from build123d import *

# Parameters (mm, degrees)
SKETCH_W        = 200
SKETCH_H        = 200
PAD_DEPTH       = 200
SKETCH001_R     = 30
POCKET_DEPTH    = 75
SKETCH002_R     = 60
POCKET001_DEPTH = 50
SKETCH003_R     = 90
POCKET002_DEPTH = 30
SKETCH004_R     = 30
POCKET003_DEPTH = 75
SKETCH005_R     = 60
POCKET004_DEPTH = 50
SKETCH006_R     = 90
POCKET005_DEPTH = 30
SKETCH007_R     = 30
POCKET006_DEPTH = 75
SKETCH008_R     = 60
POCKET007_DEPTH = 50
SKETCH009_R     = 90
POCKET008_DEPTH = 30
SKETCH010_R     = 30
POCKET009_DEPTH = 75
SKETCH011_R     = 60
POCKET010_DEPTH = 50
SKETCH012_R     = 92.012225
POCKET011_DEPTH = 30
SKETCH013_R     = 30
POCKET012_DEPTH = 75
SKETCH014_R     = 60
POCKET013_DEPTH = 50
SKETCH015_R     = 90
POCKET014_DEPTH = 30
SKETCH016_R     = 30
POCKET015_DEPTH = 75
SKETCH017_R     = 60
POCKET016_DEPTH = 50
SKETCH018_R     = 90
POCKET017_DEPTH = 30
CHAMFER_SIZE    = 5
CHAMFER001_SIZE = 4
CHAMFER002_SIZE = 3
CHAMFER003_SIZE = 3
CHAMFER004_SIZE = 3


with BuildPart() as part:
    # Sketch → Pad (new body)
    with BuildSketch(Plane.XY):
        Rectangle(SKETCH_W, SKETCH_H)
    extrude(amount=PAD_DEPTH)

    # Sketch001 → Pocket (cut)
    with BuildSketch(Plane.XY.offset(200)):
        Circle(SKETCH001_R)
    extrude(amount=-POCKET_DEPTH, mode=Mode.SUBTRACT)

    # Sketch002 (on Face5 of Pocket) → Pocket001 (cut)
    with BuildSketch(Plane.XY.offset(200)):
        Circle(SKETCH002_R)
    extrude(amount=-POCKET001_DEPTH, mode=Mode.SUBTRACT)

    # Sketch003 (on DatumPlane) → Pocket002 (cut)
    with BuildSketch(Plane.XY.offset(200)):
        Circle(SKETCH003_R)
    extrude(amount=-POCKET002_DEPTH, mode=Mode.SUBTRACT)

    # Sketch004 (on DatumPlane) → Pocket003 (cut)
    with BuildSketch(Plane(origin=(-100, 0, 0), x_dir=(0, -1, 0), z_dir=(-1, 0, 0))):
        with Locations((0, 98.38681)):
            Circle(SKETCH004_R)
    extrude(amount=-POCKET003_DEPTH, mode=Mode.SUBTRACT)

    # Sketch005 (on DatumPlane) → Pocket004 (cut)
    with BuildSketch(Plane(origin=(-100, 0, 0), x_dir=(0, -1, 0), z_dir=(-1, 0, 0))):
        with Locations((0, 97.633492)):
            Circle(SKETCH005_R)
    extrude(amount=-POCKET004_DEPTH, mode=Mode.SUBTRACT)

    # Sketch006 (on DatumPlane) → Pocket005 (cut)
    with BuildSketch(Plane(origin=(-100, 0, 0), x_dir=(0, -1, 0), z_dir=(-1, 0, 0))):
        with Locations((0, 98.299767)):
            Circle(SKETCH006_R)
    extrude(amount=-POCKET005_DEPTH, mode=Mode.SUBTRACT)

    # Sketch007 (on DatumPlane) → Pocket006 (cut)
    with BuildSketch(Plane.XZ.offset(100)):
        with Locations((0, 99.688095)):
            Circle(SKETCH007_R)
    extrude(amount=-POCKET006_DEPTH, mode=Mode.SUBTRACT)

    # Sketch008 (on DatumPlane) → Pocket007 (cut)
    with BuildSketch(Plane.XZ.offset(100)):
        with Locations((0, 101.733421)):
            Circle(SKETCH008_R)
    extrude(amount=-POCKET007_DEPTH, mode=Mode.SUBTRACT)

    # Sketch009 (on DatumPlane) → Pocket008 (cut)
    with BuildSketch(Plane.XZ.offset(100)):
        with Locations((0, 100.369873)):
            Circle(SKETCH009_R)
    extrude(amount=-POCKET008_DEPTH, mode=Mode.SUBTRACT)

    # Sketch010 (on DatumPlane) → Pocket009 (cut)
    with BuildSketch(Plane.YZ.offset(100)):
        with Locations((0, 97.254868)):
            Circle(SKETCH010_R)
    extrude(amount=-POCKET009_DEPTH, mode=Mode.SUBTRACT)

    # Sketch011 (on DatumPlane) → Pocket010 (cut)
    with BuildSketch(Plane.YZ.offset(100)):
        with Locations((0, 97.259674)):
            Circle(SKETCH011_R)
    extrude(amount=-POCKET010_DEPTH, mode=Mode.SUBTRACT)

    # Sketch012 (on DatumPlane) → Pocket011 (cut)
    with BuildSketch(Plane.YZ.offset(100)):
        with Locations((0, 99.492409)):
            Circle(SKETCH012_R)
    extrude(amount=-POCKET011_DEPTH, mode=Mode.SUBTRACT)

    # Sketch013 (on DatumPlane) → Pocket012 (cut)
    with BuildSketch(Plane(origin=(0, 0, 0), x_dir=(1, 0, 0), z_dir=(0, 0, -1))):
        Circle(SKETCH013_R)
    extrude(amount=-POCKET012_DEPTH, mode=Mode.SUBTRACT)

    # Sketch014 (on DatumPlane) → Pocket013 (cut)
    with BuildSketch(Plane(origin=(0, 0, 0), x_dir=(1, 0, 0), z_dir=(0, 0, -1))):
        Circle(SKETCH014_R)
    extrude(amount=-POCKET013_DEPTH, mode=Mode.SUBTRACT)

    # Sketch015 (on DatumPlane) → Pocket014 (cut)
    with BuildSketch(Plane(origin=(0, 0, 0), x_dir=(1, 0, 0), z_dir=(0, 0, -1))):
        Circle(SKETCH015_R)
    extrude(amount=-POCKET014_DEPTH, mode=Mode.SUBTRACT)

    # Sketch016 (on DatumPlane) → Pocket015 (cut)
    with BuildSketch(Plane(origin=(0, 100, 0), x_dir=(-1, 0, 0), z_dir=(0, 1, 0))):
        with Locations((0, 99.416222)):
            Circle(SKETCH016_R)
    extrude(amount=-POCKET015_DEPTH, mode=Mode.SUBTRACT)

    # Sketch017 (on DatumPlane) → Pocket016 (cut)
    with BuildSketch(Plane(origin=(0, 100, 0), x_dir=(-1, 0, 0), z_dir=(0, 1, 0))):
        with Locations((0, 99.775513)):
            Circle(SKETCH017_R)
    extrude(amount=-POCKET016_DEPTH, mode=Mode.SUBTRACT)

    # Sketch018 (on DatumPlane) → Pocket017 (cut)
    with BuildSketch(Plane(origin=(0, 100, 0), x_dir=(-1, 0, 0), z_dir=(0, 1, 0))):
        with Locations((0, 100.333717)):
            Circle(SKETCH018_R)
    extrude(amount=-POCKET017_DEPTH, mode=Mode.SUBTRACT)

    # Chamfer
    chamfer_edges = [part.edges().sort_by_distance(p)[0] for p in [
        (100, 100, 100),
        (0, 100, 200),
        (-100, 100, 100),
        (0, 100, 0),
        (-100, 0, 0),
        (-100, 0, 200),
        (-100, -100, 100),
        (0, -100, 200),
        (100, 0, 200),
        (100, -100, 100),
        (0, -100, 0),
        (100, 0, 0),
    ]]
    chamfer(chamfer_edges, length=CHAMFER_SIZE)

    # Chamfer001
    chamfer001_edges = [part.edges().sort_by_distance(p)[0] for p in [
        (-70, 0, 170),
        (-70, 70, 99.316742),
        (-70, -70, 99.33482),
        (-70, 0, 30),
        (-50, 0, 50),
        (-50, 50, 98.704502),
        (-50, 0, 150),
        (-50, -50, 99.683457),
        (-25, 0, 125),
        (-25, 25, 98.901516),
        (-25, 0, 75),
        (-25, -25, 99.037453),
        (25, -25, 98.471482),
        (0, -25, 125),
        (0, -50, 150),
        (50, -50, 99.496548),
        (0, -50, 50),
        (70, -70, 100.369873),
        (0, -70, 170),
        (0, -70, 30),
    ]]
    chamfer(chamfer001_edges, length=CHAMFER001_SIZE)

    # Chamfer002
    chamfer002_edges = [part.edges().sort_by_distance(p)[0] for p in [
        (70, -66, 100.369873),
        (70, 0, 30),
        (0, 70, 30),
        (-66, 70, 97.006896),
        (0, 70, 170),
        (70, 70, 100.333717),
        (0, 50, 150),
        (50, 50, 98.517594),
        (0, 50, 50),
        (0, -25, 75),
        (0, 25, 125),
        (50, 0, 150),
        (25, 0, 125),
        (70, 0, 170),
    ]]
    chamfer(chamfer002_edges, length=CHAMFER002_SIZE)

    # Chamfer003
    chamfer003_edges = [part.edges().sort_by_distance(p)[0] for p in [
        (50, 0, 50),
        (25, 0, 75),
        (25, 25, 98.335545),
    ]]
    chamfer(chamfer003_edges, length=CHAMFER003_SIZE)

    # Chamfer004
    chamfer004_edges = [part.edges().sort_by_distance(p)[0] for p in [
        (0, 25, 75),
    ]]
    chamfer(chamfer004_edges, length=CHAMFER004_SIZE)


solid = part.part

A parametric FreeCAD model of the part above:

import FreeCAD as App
import Part
import Sketcher

V = App.Vector


def edges_at(feature, points):
    """Names of the edges that pass closest to the given points."""
    edges = feature.Shape.Edges
    near = lambda p: min(range(len(edges)), key=lambda i: edges[i].distToShape(Part.Vertex(*p))[0])
    return sorted({f"Edge{near(p) + 1}" for p in points})


def add_polygon(sketch, points):
    """Adds a closed chain of lines whose ends are joined by coincident constraints."""
    first, n = sketch.GeometryCount, len(points)
    for a, b in zip(points, points[1:] + points[:1]):
        sketch.addGeometry(Part.LineSegment(App.Vector(*a, 0), App.Vector(*b, 0)), False)
    for i in range(n):
        sketch.addConstraint(Sketcher.Constraint("Coincident", first + i, 2, first + (i + 1) % n, 1))

doc = App.newDocument("Part")
body = doc.addObject("PartDesign::Body", "Body")

sketch1 = body.newObject("Sketcher::SketchObject", "Sketch")
sketch1.AttachmentSupport = (doc.getObject("XY_Plane"), [""])
sketch1.MapMode = "FlatFace"
add_polygon(sketch1, [(-100, 100), (-100, -100), (100, -100), (100, 100)])
sketch1.addConstraint([
    Sketcher.Constraint("Vertical", 0),
    Sketcher.Constraint("Horizontal", 1),
    Sketcher.Constraint("Vertical", 2),
    Sketcher.Constraint("Horizontal", 3),
    Sketcher.Constraint("Symmetric", 0, 2, 2, 2, -1, 1),
    Sketcher.Constraint("Equal", 3, 0),
    Sketcher.Constraint("DistanceX", 1, 1, 1, 2, 200.0),
])
pad1 = body.newObject("PartDesign::Pad", "Pad")
pad1.Profile = sketch1
pad1.Length = 200

sketch2 = body.newObject("Sketcher::SketchObject", "Sketch001")
sketch2.AttachmentSupport = (doc.getObject("XY_Plane"), [""])
sketch2.MapMode = "FlatFace"
sketch2.AttachmentOffset = App.Placement(V(0, 0, 200), App.Rotation())
sketch2.addGeometry(Part.Circle(V(0, 0, 0), V(0, 0, 1), 30), False)
sketch2.addConstraint([
    Sketcher.Constraint("Coincident", 0, 3, -1, 1),
    Sketcher.Constraint("Diameter", 0, 60.0),
])
pocket1 = body.newObject("PartDesign::Pocket", "Pocket")
pocket1.Profile = sketch2
pocket1.Length = 75

sketch3 = body.newObject("Sketcher::SketchObject", "Sketch002")
sketch3.AttachmentSupport = (doc.getObject("XY_Plane"), [""])
sketch3.MapMode = "FlatFace"
sketch3.AttachmentOffset = App.Placement(V(0, 0, 200), App.Rotation())
sketch3.addGeometry(Part.Circle(V(0, 0, 0), V(0, 0, 1), 60), False)
sketch3.addConstraint([
    Sketcher.Constraint("Coincident", 0, 3, -1, 1),
    Sketcher.Constraint("Diameter", 0, 120.0),
])
pocket2 = body.newObject("PartDesign::Pocket", "Pocket001")
pocket2.Profile = sketch3
pocket2.Length = 50

sketch4 = body.newObject("Sketcher::SketchObject", "Sketch003")
sketch4.AttachmentSupport = (doc.getObject("XY_Plane"), [""])
sketch4.MapMode = "FlatFace"
sketch4.AttachmentOffset = App.Placement(V(0, 0, 200), App.Rotation())
sketch4.addGeometry(Part.Circle(V(0, 0, 0), V(0, 0, 1), 90), False)
sketch4.addConstraint([
    Sketcher.Constraint("Coincident", 0, 3, -1, 1),
    Sketcher.Constraint("Diameter", 0, 180.0),
])
pocket3 = body.newObject("PartDesign::Pocket", "Pocket002")
pocket3.Profile = sketch4
pocket3.Length = 30

sketch5 = body.newObject("Sketcher::SketchObject", "Sketch004")
sketch5.AttachmentSupport = (doc.getObject("YZ_Plane"), [""])
sketch5.MapMode = "FlatFace"
sketch5.AttachmentOffset = App.Placement(V(0, 0, -100), App.Rotation())
sketch5.addGeometry(Part.Circle(V(0, 98, 0), V(0, 0, 1), 30), False)
sketch5.addConstraint([
    Sketcher.Constraint("PointOnObject", 0, 3, -2),
    Sketcher.Constraint("Diameter", 0, 60.0),
    Sketcher.Constraint("DistanceY", -1, 1, 0, 3, 98.38681),
])
pocket4 = body.newObject("PartDesign::Pocket", "Pocket003")
pocket4.Profile = sketch5
pocket4.Length = 75
pocket4.Reversed = True

sketch6 = body.newObject("Sketcher::SketchObject", "Sketch005")
sketch6.AttachmentSupport = (doc.getObject("YZ_Plane"), [""])
sketch6.MapMode = "FlatFace"
sketch6.AttachmentOffset = App.Placement(V(0, 0, -100), App.Rotation())
sketch6.addGeometry(Part.Circle(V(0, 98, 0), V(0, 0, 1), 60), False)
sketch6.addConstraint([
    Sketcher.Constraint("PointOnObject", 0, 3, -2),
    Sketcher.Constraint("Diameter", 0, 120.0),
    Sketcher.Constraint("DistanceY", -1, 1, 0, 3, 97.633492),
])
pocket5 = body.newObject("PartDesign::Pocket", "Pocket004")
pocket5.Profile = sketch6
pocket5.Length = 50
pocket5.Reversed = True

sketch7 = body.newObject("Sketcher::SketchObject", "Sketch006")
sketch7.AttachmentSupport = (doc.getObject("YZ_Plane"), [""])
sketch7.MapMode = "FlatFace"
sketch7.AttachmentOffset = App.Placement(V(0, 0, -100), App.Rotation())
sketch7.addGeometry(Part.Circle(V(0, 98, 0), V(0, 0, 1), 90), False)
sketch7.addConstraint([
    Sketcher.Constraint("PointOnObject", 0, 3, -2),
    Sketcher.Constraint("Diameter", 0, 180.0),
    Sketcher.Constraint("DistanceY", -1, 1, 0, 3, 98.299767),
])
pocket6 = body.newObject("PartDesign::Pocket", "Pocket005")
pocket6.Profile = sketch7
pocket6.Length = 30
pocket6.Reversed = True

sketch8 = body.newObject("Sketcher::SketchObject", "Sketch007")
sketch8.AttachmentSupport = (doc.getObject("XZ_Plane"), [""])
sketch8.MapMode = "FlatFace"
sketch8.AttachmentOffset = App.Placement(V(0, 0, 100), App.Rotation())
sketch8.addGeometry(Part.Circle(V(0, 100, 0), V(0, 0, 1), 30), False)
sketch8.addConstraint([
    Sketcher.Constraint("PointOnObject", 0, 3, -2),
    Sketcher.Constraint("Diameter", 0, 60.0),
    Sketcher.Constraint("DistanceY", -1, 1, 0, 3, 99.688095),
])
pocket7 = body.newObject("PartDesign::Pocket", "Pocket006")
pocket7.Profile = sketch8
pocket7.Length = 75

sketch9 = body.newObject("Sketcher::SketchObject", "Sketch008")
sketch9.AttachmentSupport = (doc.getObject("XZ_Plane"), [""])
sketch9.MapMode = "FlatFace"
sketch9.AttachmentOffset = App.Placement(V(0, 0, 100), App.Rotation())
sketch9.addGeometry(Part.Circle(V(0, 102, 0), V(0, 0, 1), 60), False)
sketch9.addConstraint([
    Sketcher.Constraint("PointOnObject", 0, 3, -2),
    Sketcher.Constraint("Diameter", 0, 120.0),
    Sketcher.Constraint("DistanceY", -1, 1, 0, 3, 101.733421),
])
pocket8 = body.newObject("PartDesign::Pocket", "Pocket007")
pocket8.Profile = sketch9
pocket8.Length = 50

sketch10 = body.newObject("Sketcher::SketchObject", "Sketch009")
sketch10.AttachmentSupport = (doc.getObject("XZ_Plane"), [""])
sketch10.MapMode = "FlatFace"
sketch10.AttachmentOffset = App.Placement(V(0, 0, 100), App.Rotation())
sketch10.addGeometry(Part.Circle(V(0, 100, 0), V(0, 0, 1), 90), False)
sketch10.addConstraint([
    Sketcher.Constraint("PointOnObject", 0, 3, -2),
    Sketcher.Constraint("Diameter", 0, 180.0),
    Sketcher.Constraint("DistanceY", -1, 1, 0, 3, 100.369873),
])
pocket9 = body.newObject("PartDesign::Pocket", "Pocket008")
pocket9.Profile = sketch10
pocket9.Length = 30

sketch11 = body.newObject("Sketcher::SketchObject", "Sketch010")
sketch11.AttachmentSupport = (doc.getObject("YZ_Plane"), [""])
sketch11.MapMode = "FlatFace"
sketch11.AttachmentOffset = App.Placement(V(0, 0, 100), App.Rotation())
sketch11.addGeometry(Part.Circle(V(0, 97, 0), V(0, 0, 1), 30), False)
sketch11.addConstraint([
    Sketcher.Constraint("PointOnObject", 0, 3, -2),
    Sketcher.Constraint("Diameter", 0, 60.0),
    Sketcher.Constraint("DistanceY", -1, 1, 0, 3, 97.254868),
])
pocket10 = body.newObject("PartDesign::Pocket", "Pocket009")
pocket10.Profile = sketch11
pocket10.Length = 75

sketch12 = body.newObject("Sketcher::SketchObject", "Sketch011")
sketch12.AttachmentSupport = (doc.getObject("YZ_Plane"), [""])
sketch12.MapMode = "FlatFace"
sketch12.AttachmentOffset = App.Placement(V(0, 0, 100), App.Rotation())
sketch12.addGeometry(Part.Circle(V(0, 97, 0), V(0, 0, 1), 60), False)
sketch12.addConstraint([
    Sketcher.Constraint("PointOnObject", 0, 3, -2),
    Sketcher.Constraint("Diameter", 0, 120.0),
    Sketcher.Constraint("DistanceY", -1, 1, 0, 3, 97.259674),
])
pocket11 = body.newObject("PartDesign::Pocket", "Pocket010")
pocket11.Profile = sketch12
pocket11.Length = 50

sketch13 = body.newObject("Sketcher::SketchObject", "Sketch012")
sketch13.AttachmentSupport = (doc.getObject("YZ_Plane"), [""])
sketch13.MapMode = "FlatFace"
sketch13.AttachmentOffset = App.Placement(V(0, 0, 100), App.Rotation())
sketch13.addGeometry(Part.Circle(V(0, 99, 0), V(0, 0, 1), 92), False)
sketch13.addConstraint([
    Sketcher.Constraint("PointOnObject", 0, 3, -2),
    Sketcher.Constraint("Diameter", 0, 184.02445),
    Sketcher.Constraint("DistanceY", -1, 1, 0, 3, 99.492409),
])
pocket12 = body.newObject("PartDesign::Pocket", "Pocket011")
pocket12.Profile = sketch13
pocket12.Length = 30

sketch14 = body.newObject("Sketcher::SketchObject", "Sketch013")
sketch14.AttachmentSupport = (doc.getObject("XY_Plane"), [""])
sketch14.MapMode = "FlatFace"
sketch14.addGeometry(Part.Circle(V(0, 0, 0), V(0, 0, 1), 30), False)
sketch14.addConstraint([
    Sketcher.Constraint("Coincident", 0, 3, -1, 1),
    Sketcher.Constraint("Diameter", 0, 60.0),
])
pocket13 = body.newObject("PartDesign::Pocket", "Pocket012")
pocket13.Profile = sketch14
pocket13.Length = 75
pocket13.Reversed = True

sketch15 = body.newObject("Sketcher::SketchObject", "Sketch014")
sketch15.AttachmentSupport = (doc.getObject("XY_Plane"), [""])
sketch15.MapMode = "FlatFace"
sketch15.addGeometry(Part.Circle(V(0, 0, 0), V(0, 0, 1), 60), False)
sketch15.addConstraint([
    Sketcher.Constraint("Coincident", 0, 3, -1, 1),
    Sketcher.Constraint("Diameter", 0, 120.0),
])
pocket14 = body.newObject("PartDesign::Pocket", "Pocket013")
pocket14.Profile = sketch15
pocket14.Length = 50
pocket14.Reversed = True

sketch16 = body.newObject("Sketcher::SketchObject", "Sketch015")
sketch16.AttachmentSupport = (doc.getObject("XY_Plane"), [""])
sketch16.MapMode = "FlatFace"
sketch16.addGeometry(Part.Circle(V(0, 0, 0), V(0, 0, 1), 90), False)
sketch16.addConstraint([
    Sketcher.Constraint("Coincident", 0, 3, -1, 1),
    Sketcher.Constraint("Diameter", 0, 180.0),
])
pocket15 = body.newObject("PartDesign::Pocket", "Pocket014")
pocket15.Profile = sketch16
pocket15.Length = 30
pocket15.Reversed = True

sketch17 = body.newObject("Sketcher::SketchObject", "Sketch016")
sketch17.AttachmentSupport = (doc.getObject("XZ_Plane"), [""])
sketch17.MapMode = "FlatFace"
sketch17.AttachmentOffset = App.Placement(V(0, 0, -100), App.Rotation())
sketch17.addGeometry(Part.Circle(V(0, 99, 0), V(0, 0, 1), 30), False)
sketch17.addConstraint([
    Sketcher.Constraint("PointOnObject", 0, 3, -2),
    Sketcher.Constraint("Diameter", 0, 60.0),
    Sketcher.Constraint("DistanceY", -1, 1, 0, 3, 99.416222),
])
pocket16 = body.newObject("PartDesign::Pocket", "Pocket015")
pocket16.Profile = sketch17
pocket16.Length = 75
pocket16.Reversed = True

sketch18 = body.newObject("Sketcher::SketchObject", "Sketch017")
sketch18.AttachmentSupport = (doc.getObject("XZ_Plane"), [""])
sketch18.MapMode = "FlatFace"
sketch18.AttachmentOffset = App.Placement(V(0, 0, -100), App.Rotation())
sketch18.addGeometry(Part.Circle(V(0, 100, 0), V(0, 0, 1), 60), False)
sketch18.addConstraint([
    Sketcher.Constraint("PointOnObject", 0, 3, -2),
    Sketcher.Constraint("Diameter", 0, 120.0),
    Sketcher.Constraint("DistanceY", -1, 1, 0, 3, 99.775513),
])
pocket17 = body.newObject("PartDesign::Pocket", "Pocket016")
pocket17.Profile = sketch18
pocket17.Length = 50
pocket17.Reversed = True

sketch19 = body.newObject("Sketcher::SketchObject", "Sketch018")
sketch19.AttachmentSupport = (doc.getObject("XZ_Plane"), [""])
sketch19.MapMode = "FlatFace"
sketch19.AttachmentOffset = App.Placement(V(0, 0, -100), App.Rotation())
sketch19.addGeometry(Part.Circle(V(0, 100, 0), V(0, 0, 1), 90), False)
sketch19.addConstraint([
    Sketcher.Constraint("PointOnObject", 0, 3, -2),
    Sketcher.Constraint("Diameter", 0, 180.0),
    Sketcher.Constraint("DistanceY", -1, 1, 0, 3, 100.333717),
])
pocket18 = body.newObject("PartDesign::Pocket", "Pocket017")
pocket18.Profile = sketch19
pocket18.Length = 30
pocket18.Reversed = True
doc.recompute()

chamfer = body.newObject("PartDesign::Chamfer", "Chamfer")
chamfer.Base = (pocket18, edges_at(pocket18, [
    (100, 100, 100),
    (0, 100, 200),
    (-100, 100, 100),
    (0, 100, 0),
    (-100, 0, 0),
    (-100, 0, 200),
    (-100, -100, 100),
    (0, -100, 200),
    (100, 0, 200),
    (100, -100, 100),
    (0, -100, 0),
    (100, 0, 0),
]))
chamfer.Size = 5
doc.recompute()

chamfer2 = body.newObject("PartDesign::Chamfer", "Chamfer001")
chamfer2.Base = (chamfer, edges_at(chamfer, [
    (-70, 0, 170),
    (-70, 70, 99.317),
    (-70, -70, 99.335),
    (-70, 0, 30),
    (-50, 0, 50),
    (-50, 50, 98.705),
    (-50, 0, 150),
    (-50, -50, 99.683),
    (-25, 0, 125),
    (-25, 25, 98.902),
    (-25, 0, 75),
    (-25, -25, 99.037),
    (25, -25, 98.471),
    (0, -25, 125),
    (0, -50, 150),
    (50, -50, 99.497),
    (0, -50, 50),
    (70, -70, 100.37),
    (0, -70, 170),
    (0, -70, 30),
]))
chamfer2.Size = 4
doc.recompute()

chamfer3 = body.newObject("PartDesign::Chamfer", "Chamfer002")
chamfer3.Base = (chamfer2, edges_at(chamfer2, [
    (70, -66, 100.37),
    (70, 0, 30),
    (0, 70, 30),
    (-66, 70, 97.007),
    (0, 70, 170),
    (70, 70, 100.334),
    (0, 50, 150),
    (50, 50, 98.518),
    (0, 50, 50),
    (0, -25, 75),
    (0, 25, 125),
    (50, 0, 150),
    (25, 0, 125),
    (70, 0, 170),
]))
chamfer3.Size = 3
doc.recompute()

chamfer4 = body.newObject("PartDesign::Chamfer", "Chamfer003")
chamfer4.Base = (chamfer3, edges_at(chamfer3, [(50, 0, 50), (25, 0, 75), (25, 25, 98.336)]))
chamfer4.Size = 3
doc.recompute()

chamfer5 = body.newObject("PartDesign::Chamfer", "Chamfer004")
chamfer5.Base = (chamfer4, edges_at(chamfer4, [(0, 25, 75)]))
chamfer5.Size = 3

doc.recompute()
